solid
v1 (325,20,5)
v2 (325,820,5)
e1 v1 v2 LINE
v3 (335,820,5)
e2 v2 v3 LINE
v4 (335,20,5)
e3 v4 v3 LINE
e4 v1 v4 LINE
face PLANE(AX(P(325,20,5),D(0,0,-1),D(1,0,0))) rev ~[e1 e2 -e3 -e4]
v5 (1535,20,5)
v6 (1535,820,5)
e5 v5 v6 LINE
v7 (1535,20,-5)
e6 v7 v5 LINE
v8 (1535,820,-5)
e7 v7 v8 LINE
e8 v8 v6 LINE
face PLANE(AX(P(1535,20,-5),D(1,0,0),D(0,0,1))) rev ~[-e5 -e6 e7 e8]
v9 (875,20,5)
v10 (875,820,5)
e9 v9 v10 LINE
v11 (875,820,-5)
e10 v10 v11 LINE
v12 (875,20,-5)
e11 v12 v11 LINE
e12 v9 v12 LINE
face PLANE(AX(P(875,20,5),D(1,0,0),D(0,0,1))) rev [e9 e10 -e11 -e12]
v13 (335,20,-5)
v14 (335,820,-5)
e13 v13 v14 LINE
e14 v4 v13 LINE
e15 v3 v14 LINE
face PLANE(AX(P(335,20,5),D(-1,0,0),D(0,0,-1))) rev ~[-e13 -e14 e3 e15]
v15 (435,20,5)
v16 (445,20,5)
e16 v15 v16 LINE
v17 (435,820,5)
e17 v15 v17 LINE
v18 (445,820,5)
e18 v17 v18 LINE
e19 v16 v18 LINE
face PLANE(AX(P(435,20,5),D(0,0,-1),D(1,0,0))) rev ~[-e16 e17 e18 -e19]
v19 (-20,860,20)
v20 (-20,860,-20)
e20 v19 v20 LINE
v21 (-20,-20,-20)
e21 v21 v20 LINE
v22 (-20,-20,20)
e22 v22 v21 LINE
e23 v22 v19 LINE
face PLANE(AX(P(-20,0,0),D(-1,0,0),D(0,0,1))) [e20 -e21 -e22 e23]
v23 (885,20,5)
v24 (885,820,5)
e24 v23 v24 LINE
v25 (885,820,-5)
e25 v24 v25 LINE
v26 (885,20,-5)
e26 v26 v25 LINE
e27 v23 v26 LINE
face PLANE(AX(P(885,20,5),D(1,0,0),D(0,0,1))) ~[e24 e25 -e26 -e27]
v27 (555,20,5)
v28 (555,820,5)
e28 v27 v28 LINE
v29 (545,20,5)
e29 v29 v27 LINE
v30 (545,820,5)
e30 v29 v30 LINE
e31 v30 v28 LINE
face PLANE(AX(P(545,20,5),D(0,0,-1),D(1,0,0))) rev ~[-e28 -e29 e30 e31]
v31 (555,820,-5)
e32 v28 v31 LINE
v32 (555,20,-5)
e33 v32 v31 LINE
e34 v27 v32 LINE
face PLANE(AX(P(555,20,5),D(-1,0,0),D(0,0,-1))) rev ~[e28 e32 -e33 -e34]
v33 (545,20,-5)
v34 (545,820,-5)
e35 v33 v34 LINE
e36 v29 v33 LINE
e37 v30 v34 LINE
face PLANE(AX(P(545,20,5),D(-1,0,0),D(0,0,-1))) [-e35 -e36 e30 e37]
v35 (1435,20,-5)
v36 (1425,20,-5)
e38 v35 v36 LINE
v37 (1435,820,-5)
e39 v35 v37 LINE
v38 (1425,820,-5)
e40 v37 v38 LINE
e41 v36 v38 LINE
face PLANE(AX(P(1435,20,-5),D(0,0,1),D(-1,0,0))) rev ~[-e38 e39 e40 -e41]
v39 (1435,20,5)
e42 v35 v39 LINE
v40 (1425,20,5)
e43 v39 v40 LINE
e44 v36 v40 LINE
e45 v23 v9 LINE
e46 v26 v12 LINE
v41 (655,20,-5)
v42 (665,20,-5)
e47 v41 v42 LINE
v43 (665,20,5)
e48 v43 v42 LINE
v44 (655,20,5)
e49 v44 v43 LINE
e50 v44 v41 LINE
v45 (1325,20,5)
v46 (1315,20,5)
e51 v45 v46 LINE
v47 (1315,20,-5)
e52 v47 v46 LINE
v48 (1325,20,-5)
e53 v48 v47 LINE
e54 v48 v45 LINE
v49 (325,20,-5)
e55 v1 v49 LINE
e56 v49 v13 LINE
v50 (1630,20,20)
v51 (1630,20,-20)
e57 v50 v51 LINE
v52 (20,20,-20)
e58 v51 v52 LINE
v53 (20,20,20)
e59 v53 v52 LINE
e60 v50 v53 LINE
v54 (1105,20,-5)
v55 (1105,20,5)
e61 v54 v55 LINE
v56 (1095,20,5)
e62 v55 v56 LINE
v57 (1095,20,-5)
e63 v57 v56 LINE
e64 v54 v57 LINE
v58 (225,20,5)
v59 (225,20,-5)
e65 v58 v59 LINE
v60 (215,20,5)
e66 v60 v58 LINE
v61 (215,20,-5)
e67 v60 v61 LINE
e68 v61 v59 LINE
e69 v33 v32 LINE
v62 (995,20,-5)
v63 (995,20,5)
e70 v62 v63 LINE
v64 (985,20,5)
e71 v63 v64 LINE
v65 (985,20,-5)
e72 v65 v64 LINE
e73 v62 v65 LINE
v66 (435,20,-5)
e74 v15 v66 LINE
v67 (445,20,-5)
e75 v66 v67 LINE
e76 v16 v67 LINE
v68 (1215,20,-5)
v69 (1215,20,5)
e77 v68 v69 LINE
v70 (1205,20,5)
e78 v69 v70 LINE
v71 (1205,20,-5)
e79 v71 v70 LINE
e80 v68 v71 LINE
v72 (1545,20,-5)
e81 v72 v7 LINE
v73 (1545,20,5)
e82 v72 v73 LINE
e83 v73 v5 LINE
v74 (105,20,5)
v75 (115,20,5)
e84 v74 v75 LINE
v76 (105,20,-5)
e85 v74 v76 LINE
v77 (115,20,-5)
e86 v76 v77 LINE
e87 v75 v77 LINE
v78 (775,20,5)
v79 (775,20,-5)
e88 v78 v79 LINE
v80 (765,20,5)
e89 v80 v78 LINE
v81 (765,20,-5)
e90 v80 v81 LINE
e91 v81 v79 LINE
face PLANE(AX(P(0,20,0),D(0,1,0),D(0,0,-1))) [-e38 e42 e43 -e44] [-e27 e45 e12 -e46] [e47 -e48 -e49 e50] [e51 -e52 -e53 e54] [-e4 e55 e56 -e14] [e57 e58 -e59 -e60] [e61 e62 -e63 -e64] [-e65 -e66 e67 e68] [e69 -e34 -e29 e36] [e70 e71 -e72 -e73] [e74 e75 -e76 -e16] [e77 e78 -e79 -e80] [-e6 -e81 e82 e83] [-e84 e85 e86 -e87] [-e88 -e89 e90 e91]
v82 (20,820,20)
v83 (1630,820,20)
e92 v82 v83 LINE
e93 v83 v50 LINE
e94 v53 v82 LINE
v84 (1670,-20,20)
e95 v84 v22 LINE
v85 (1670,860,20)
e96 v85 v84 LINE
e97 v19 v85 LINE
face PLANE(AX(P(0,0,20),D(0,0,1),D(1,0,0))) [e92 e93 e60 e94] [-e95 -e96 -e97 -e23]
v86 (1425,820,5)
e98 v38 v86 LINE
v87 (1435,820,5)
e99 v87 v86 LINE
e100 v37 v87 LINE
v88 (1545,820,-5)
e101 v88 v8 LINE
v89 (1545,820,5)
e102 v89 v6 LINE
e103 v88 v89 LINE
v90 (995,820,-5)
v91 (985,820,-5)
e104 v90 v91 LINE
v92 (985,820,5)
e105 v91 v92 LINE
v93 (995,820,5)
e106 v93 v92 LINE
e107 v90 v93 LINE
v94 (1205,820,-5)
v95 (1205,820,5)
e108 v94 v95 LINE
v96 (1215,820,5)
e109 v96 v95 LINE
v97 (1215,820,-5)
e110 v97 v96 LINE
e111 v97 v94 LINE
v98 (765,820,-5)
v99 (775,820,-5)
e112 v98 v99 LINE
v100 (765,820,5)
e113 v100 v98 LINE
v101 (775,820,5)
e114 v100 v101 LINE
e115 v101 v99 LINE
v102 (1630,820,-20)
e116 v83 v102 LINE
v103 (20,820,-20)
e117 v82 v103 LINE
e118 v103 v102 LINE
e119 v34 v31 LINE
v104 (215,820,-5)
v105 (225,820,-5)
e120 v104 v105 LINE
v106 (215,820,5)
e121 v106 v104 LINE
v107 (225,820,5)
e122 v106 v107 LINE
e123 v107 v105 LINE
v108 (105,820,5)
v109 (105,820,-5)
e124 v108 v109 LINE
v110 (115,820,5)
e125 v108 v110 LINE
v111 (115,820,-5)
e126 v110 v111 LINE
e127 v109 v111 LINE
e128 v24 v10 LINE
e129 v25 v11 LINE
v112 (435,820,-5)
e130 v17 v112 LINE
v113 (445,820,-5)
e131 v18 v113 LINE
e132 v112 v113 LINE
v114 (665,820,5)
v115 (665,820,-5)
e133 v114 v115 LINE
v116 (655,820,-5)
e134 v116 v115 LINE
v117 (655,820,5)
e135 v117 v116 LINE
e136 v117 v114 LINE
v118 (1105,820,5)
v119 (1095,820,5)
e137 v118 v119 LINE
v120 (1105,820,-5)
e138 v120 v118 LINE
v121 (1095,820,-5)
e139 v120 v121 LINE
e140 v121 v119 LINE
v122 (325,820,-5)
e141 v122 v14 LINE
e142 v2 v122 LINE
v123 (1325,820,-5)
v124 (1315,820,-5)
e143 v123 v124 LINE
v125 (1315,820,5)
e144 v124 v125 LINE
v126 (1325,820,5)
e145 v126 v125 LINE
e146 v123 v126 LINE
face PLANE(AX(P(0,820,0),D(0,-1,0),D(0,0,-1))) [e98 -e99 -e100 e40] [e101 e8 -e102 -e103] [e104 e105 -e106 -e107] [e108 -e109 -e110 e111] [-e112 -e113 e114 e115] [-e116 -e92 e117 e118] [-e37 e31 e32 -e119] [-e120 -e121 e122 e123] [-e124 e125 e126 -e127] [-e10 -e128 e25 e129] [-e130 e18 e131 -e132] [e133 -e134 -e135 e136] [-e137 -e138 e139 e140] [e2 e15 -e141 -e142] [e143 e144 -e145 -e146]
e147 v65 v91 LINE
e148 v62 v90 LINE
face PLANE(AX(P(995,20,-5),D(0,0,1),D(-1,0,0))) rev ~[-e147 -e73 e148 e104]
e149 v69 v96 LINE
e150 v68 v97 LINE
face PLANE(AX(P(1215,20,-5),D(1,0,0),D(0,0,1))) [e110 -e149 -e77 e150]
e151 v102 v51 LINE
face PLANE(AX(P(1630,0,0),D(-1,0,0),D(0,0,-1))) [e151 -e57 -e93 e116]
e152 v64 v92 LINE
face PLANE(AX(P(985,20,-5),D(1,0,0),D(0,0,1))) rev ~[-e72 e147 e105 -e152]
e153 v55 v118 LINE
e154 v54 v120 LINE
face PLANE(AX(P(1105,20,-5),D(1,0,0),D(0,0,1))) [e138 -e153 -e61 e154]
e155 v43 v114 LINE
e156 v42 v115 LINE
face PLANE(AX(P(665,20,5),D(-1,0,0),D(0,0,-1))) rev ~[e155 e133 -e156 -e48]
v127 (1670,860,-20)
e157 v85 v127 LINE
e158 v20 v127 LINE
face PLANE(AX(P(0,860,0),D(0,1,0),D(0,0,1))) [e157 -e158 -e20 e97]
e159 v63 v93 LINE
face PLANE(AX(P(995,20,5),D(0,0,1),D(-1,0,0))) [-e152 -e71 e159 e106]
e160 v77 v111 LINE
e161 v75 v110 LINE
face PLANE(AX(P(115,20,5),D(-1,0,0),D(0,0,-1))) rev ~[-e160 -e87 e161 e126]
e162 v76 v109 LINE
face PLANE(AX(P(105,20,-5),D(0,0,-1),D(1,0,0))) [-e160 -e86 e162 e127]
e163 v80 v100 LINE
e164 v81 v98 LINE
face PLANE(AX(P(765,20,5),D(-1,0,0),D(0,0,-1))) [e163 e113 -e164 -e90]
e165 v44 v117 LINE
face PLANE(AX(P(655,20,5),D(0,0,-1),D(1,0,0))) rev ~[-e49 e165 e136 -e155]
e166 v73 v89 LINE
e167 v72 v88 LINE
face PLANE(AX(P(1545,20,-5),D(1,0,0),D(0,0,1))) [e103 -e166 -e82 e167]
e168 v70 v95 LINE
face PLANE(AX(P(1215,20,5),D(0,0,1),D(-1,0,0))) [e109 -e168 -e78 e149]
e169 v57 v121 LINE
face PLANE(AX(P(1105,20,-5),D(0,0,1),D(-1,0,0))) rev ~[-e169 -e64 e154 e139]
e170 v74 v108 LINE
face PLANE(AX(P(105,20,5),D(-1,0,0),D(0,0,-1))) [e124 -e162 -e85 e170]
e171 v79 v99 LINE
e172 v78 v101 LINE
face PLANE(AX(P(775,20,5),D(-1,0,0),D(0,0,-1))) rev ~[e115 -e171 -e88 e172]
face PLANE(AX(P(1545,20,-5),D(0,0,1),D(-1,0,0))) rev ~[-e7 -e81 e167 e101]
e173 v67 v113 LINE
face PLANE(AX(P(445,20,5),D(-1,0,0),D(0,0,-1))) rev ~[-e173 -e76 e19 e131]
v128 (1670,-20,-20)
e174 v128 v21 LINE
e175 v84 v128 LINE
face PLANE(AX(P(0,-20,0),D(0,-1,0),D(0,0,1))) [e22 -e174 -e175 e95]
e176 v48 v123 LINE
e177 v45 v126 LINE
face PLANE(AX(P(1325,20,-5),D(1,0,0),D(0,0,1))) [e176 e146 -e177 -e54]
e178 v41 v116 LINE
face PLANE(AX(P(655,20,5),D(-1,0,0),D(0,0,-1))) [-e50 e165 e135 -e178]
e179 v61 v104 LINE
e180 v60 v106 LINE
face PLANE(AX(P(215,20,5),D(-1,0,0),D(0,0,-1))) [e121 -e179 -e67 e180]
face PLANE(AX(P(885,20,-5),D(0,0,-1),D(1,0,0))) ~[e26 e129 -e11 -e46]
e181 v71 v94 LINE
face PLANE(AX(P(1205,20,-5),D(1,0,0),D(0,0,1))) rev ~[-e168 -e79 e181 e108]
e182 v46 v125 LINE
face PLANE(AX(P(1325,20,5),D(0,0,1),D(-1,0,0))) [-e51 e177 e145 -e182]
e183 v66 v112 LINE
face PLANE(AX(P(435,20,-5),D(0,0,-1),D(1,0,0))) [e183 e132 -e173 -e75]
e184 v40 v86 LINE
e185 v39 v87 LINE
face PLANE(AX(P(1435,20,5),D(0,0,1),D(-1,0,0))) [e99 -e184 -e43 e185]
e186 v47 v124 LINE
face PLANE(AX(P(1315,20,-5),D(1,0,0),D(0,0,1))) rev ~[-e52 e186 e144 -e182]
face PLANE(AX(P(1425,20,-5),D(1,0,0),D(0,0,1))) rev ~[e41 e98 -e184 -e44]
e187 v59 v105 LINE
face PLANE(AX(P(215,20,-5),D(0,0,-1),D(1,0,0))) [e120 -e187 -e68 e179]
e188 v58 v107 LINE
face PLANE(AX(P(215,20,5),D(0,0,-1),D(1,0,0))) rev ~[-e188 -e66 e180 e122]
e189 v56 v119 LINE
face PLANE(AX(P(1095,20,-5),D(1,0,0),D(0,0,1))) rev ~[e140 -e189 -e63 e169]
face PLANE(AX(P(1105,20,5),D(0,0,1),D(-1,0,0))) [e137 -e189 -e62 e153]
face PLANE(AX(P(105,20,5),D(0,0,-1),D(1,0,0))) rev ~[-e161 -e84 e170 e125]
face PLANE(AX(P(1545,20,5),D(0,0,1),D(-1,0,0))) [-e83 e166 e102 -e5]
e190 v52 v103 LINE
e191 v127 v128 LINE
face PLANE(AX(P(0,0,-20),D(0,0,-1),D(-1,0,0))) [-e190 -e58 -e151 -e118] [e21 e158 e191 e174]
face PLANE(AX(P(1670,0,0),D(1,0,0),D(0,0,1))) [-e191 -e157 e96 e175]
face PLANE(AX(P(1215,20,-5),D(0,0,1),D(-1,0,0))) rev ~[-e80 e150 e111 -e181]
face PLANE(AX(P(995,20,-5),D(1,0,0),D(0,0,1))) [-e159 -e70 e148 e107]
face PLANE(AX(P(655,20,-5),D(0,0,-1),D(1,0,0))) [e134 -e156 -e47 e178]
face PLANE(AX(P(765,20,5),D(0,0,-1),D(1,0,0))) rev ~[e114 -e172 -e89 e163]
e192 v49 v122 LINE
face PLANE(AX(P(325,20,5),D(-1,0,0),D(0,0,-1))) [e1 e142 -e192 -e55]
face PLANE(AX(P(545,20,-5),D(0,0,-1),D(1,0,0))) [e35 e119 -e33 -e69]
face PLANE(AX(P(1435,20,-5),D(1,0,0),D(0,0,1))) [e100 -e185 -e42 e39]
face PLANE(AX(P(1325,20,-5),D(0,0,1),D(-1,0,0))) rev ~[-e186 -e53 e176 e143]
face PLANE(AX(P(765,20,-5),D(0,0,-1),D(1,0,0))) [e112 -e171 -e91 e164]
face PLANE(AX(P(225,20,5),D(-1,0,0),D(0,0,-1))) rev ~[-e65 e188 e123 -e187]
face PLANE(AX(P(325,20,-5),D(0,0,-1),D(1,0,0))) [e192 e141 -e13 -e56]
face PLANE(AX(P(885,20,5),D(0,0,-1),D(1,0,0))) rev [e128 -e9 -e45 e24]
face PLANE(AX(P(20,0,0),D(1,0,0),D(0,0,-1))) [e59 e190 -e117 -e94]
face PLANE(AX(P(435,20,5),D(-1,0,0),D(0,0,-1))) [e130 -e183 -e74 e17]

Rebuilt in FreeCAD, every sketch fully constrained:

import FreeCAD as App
import Part
import Sketcher
from FreeCAD import Vector


def add_polygon(sketch, points):
    """Adds a closed chain of lines whose ends are joined by coincident constraints."""
    first, n = sketch.GeometryCount, len(points)
    for a, b in zip(points, points[1:] + points[:1]):
        sketch.addGeometry(Part.LineSegment(App.Vector(*a, 0), App.Vector(*b, 0)), False)
    for i in range(n):
        sketch.addConstraint(Sketcher.Constraint("Coincident", first + i, 2, first + (i + 1) % n, 1))

doc = App.newDocument("Part")
params = doc.addObject("Spreadsheet::Sheet", "Params")
for row, (alias, value) in enumerate([
    ("sketch1_width", "40 mm"),
    ("sketch2_width", "1650 mm"),
    ("sketch2_height", "840 mm"),
    ("sketch3_width", "10 mm"),
    ("pad1_length", "800 mm"),
    ("linearpattern_pitch", "110 mm"),
    ("sketch4_width", "10 mm"),
    ("pad2_length", "800 mm"),
    ("sketch5_width", "10 mm"),
    ("pad3_length", "800 mm"),
    ("sketch6_width", "10 mm"),
    ("pad4_length", "800 mm"),
    ("sketch7_width", "10 mm"),
    ("pad5_length", "800 mm"),
    ("sketch8_width", "10 mm"),
    ("pad6_length", "800 mm"),
    ("sketch9_width", "10 mm"),
    ("pad7_length", "800 mm"),
], start=1):
    params.set(f"A{row}", alias)
    params.set(f"B{row}", "=" + value)
    params.setAlias(f"B{row}", alias)

body = doc.addObject("PartDesign::Body", "Body")

# Sketch on XZ plane
sketch1 = body.newObject("Sketcher::SketchObject", "Sketch")
sketch1.AttachmentSupport = (doc.getObject("XZ_Plane"), [""])
sketch1.MapMode = "FlatFace"
add_polygon(sketch1, [(-20, -20), (-20, 20), (20, 20), (20, -20)])  # lines 0-3
sketch1.addConstraint(Sketcher.Constraint("Vertical", 0))
sketch1.addConstraint(Sketcher.Constraint("Horizontal", 1))
sketch1.addConstraint(Sketcher.Constraint("Vertical", 2))
sketch1.addConstraint(Sketcher.Constraint("Horizontal", 3))
sketch1.addConstraint(Sketcher.Constraint("Symmetric", 0, 2, 2, 2, -1, 1))
sketch1.addConstraint(Sketcher.Constraint("Equal", 3, 0))
sketch1.addConstraint(Sketcher.Constraint("DistanceX", 1, 1, 1, 2, 40.0))
sketch1.setExpression("Constraints[10]", "Params.sketch1_width")

# Sketch on XY plane
sketch2 = body.newObject("Sketcher::SketchObject", "Sketch001")
sketch2.AttachmentSupport = (doc.getObject("XY_Plane"), [""])
sketch2.MapMode = "FlatFace"
add_polygon(sketch2, [(0, 0), (0, 840), (1650, 840), (1650, 0)])  # lines 0-3
sketch2.addConstraint(Sketcher.Constraint("Vertical", 0))
sketch2.addConstraint(Sketcher.Constraint("Horizontal", 1))
sketch2.addConstraint(Sketcher.Constraint("Vertical", 2))
sketch2.addConstraint(Sketcher.Constraint("Horizontal", 3))
sketch2.addConstraint(Sketcher.Constraint("Coincident", 3, 2, -1, 1))
sketch2.addConstraint(Sketcher.Constraint("DistanceX", 1, 1, 1, 2, 1650.0))
sketch2.addConstraint(Sketcher.Constraint("DistanceY", 0, 1, 0, 2, 840.0))
sketch2.setExpression("Constraints[9]", "Params.sketch2_width")
sketch2.setExpression("Constraints[10]", "Params.sketch2_height")
doc.recompute()

additivepipe = body.newObject("PartDesign::AdditivePipe", "AdditivePipe")
additivepipe.Profile = sketch1
additivepipe.Spine = (sketch2, ["Edge1", "Edge2", "Edge3", "Edge4"])
additivepipe.Transition = "Right corner"

# Sketch on XZ plane
sketch3 = body.newObject("Sketcher::SketchObject", "Sketch002")
sketch3.AttachmentSupport = (doc.getObject("XZ_Plane"), [""])
sketch3.MapMode = "FlatFace"
sketch3.AttachmentOffset = App.Placement(Vector(0, 0, -20), App.Rotation())
add_polygon(sketch3, [(765, -5), (765, 5), (775, 5), (775, -5)])  # lines 0-3
sketch3.addConstraint(Sketcher.Constraint("Vertical", 0))
sketch3.addConstraint(Sketcher.Constraint("Horizontal", 1))
sketch3.addConstraint(Sketcher.Constraint("Vertical", 2))
sketch3.addConstraint(Sketcher.Constraint("Horizontal", 3))
sketch3.addConstraint(Sketcher.Constraint("Equal", 3, 0))
sketch3.addConstraint(Sketcher.Constraint("DistanceX", 1, 1, 1, 2, 10.0))
sketch3.addConstraint(Sketcher.Constraint("DistanceX", -1, 1, 0, 2, 765.0))
sketch3.addConstraint(Sketcher.Constraint("DistanceY", -1, 1, 0, 2, 5.0))
sketch3.setExpression("Constraints[9]", "Params.sketch3_width")
pad1 = body.newObject("PartDesign::Pad", "Pad")
pad1.Profile = sketch3
pad1.setExpression("Length", "Params.pad1_length")
pad1.Reversed = True
doc.recompute()

linearpattern = body.newObject("PartDesign::LinearPattern", "LinearPattern")
linearpattern.Originals = [pad1]
linearpattern.Direction = (doc.getObject("X_Axis"), [""])
linearpattern.Mode = "offset"
linearpattern.setExpression("Offset", "Params.linearpattern_pitch")
linearpattern.Occurrences = 7
linearpattern.Reversed = True
body.Tip = linearpattern
doc.recompute()

datumplane = body.newObject("PartDesign::Plane", "DatumPlane")
datumplane.AttachmentSupport = (doc.getObject("YZ_Plane"), [""])
datumplane.MapMode = "FlatFace"
datumplane.AttachmentOffset = App.Placement(Vector(0, 0, 825), App.Rotation())
mirrored = body.newObject("PartDesign::Mirrored", "Mirrored")
mirrored.Originals = [pad1]
mirrored.MirrorPlane = (datumplane, [""])
body.Tip = mirrored

# Sketch on XZ plane
sketch4 = body.newObject("Sketcher::SketchObject", "Sketch003")
sketch4.AttachmentSupport = (doc.getObject("XZ_Plane"), [""])
sketch4.MapMode = "FlatFace"
sketch4.AttachmentOffset = App.Placement(Vector(0, 0, -20), App.Rotation())
add_polygon(sketch4, [(995, 5), (995, -5), (985, -5), (985, 5)])  # lines 0-3
sketch4.addConstraint(Sketcher.Constraint("Vertical", 0))
sketch4.addConstraint(Sketcher.Constraint("Horizontal", 1))
sketch4.addConstraint(Sketcher.Constraint("Vertical", 2))
sketch4.addConstraint(Sketcher.Constraint("Horizontal", 3))
sketch4.addConstraint(Sketcher.Constraint("Equal", 3, 0))
sketch4.addConstraint(Sketcher.Constraint("DistanceX", 1, 2, 1, 1, 10.0))
sketch4.addConstraint(Sketcher.Constraint("DistanceX", -1, 1, 0, 2, 995.0))
sketch4.addConstraint(Sketcher.Constraint("DistanceY", 0, 2, -1, 1, 5.0))
sketch4.setExpression("Constraints[9]", "Params.sketch4_width")
pad2 = body.newObject("PartDesign::Pad", "Pad001")
pad2.Profile = sketch4
pad2.setExpression("Length", "Params.pad2_length")
pad2.Reversed = True

# Sketch on XZ plane
sketch5 = body.newObject("Sketcher::SketchObject", "Sketch004")
sketch5.AttachmentSupport = (doc.getObject("XZ_Plane"), [""])
sketch5.MapMode = "FlatFace"
sketch5.AttachmentOffset = App.Placement(Vector(0, 0, -20), App.Rotation())
add_polygon(sketch5, [(1105, 5), (1105, -5), (1095, -5), (1095, 5)])  # lines 0-3
sketch5.addConstraint(Sketcher.Constraint("Vertical", 0))
sketch5.addConstraint(Sketcher.Constraint("Horizontal", 1))
sketch5.addConstraint(Sketcher.Constraint("Vertical", 2))
sketch5.addConstraint(Sketcher.Constraint("Horizontal", 3))
sketch5.addConstraint(Sketcher.Constraint("Equal", 3, 0))
sketch5.addConstraint(Sketcher.Constraint("DistanceX", 1, 2, 1, 1, 10.0))
sketch5.addConstraint(Sketcher.Constraint("DistanceX", -1, 1, 0, 2, 1105.0))
sketch5.addConstraint(Sketcher.Constraint("DistanceY", 0, 2, -1, 1, 5.0))
sketch5.setExpression("Constraints[9]", "Params.sketch5_width")
pad3 = body.newObject("PartDesign::Pad", "Pad002")
pad3.Profile = sketch5
pad3.setExpression("Length", "Params.pad3_length")
pad3.Reversed = True

# Sketch on XZ plane
sketch6 = body.newObject("Sketcher::SketchObject", "Sketch005")
sketch6.AttachmentSupport = (doc.getObject("XZ_Plane"), [""])
sketch6.MapMode = "FlatFace"
sketch6.AttachmentOffset = App.Placement(Vector(0, 0, -20), App.Rotation())
add_polygon(sketch6, [(1215, 5), (1215, -5), (1205, -5), (1205, 5)])  # lines 0-3
sketch6.addConstraint(Sketcher.Constraint("Vertical", 0))
sketch6.addConstraint(Sketcher.Constraint("Horizontal", 1))
sketch6.addConstraint(Sketcher.Constraint("Vertical", 2))
sketch6.addConstraint(Sketcher.Constraint("Horizontal", 3))
sketch6.addConstraint(Sketcher.Constraint("Equal", 3, 0))
sketch6.addConstraint(Sketcher.Constraint("DistanceX", 1, 2, 1, 1, 10.0))
sketch6.addConstraint(Sketcher.Constraint("DistanceX", -1, 1, 0, 2, 1215.0))
sketch6.addConstraint(Sketcher.Constraint("DistanceY", 0, 2, -1, 1, 5.0))
sketch6.setExpression("Constraints[9]", "Params.sketch6_width")
pad4 = body.newObject("PartDesign::Pad", "Pad003")
pad4.Profile = sketch6
pad4.setExpression("Length", "Params.pad4_length")
pad4.Reversed = True

# Sketch on XZ plane
sketch7 = body.newObject("Sketcher::SketchObject", "Sketch006")
sketch7.AttachmentSupport = (doc.getObject("XZ_Plane"), [""])
sketch7.MapMode = "FlatFace"
sketch7.AttachmentOffset = App.Placement(Vector(0, 0, -20), App.Rotation())
add_polygon(sketch7, [(1325, 5), (1325, -5), (1315, -5), (1315, 5)])  # lines 0-3
sketch7.addConstraint(Sketcher.Constraint("Vertical", 0))
sketch7.addConstraint(Sketcher.Constraint("Horizontal", 1))
sketch7.addConstraint(Sketcher.Constraint("Vertical", 2))
sketch7.addConstraint(Sketcher.Constraint("Horizontal", 3))
sketch7.addConstraint(Sketcher.Constraint("Equal", 3, 0))
sketch7.addConstraint(Sketcher.Constraint("DistanceX", 1, 2, 1, 1, 10.0))
sketch7.addConstraint(Sketcher.Constraint("DistanceX", -1, 1, 0, 2, 1325.0))
sketch7.addConstraint(Sketcher.Constraint("DistanceY", 0, 2, -1, 1, 5.0))
sketch7.setExpression("Constraints[9]", "Params.sketch7_width")
pad5 = body.newObject("PartDesign::Pad", "Pad004")
pad5.Profile = sketch7
pad5.setExpression("Length", "Params.pad5_length")
pad5.Reversed = True

# Sketch on XZ plane
sketch8 = body.newObject("Sketcher::SketchObject", "Sketch007")
sketch8.AttachmentSupport = (doc.getObject("XZ_Plane"), [""])
sketch8.MapMode = "FlatFace"
sketch8.AttachmentOffset = App.Placement(Vector(0, 0, -20), App.Rotation())
add_polygon(sketch8, [(1435, 5), (1435, -5), (1425, -5), (1425, 5)])  # lines 0-3
sketch8.addConstraint(Sketcher.Constraint("Vertical", 0))
sketch8.addConstraint(Sketcher.Constraint("Horizontal", 1))
sketch8.addConstraint(Sketcher.Constraint("Vertical", 2))
sketch8.addConstraint(Sketcher.Constraint("Horizontal", 3))
sketch8.addConstraint(Sketcher.Constraint("Equal", 3, 0))
sketch8.addConstraint(Sketcher.Constraint("DistanceX", 1, 2, 1, 1, 10.0))
sketch8.addConstraint(Sketcher.Constraint("DistanceX", -1, 1, 0, 2, 1435.0))
sketch8.addConstraint(Sketcher.Constraint("DistanceY", 0, 2, -1, 1, 5.0))
sketch8.setExpression("Constraints[9]", "Params.sketch8_width")
pad6 = body.newObject("PartDesign::Pad", "Pad005")
pad6.Profile = sketch8
pad6.setExpression("Length", "Params.pad6_length")
pad6.Reversed = True

# Sketch on XZ plane
sketch9 = body.newObject("Sketcher::SketchObject", "Sketch008")
sketch9.AttachmentSupport = (doc.getObject("XZ_Plane"), [""])
sketch9.MapMode = "FlatFace"
sketch9.AttachmentOffset = App.Placement(Vector(0, 0, -20), App.Rotation())
add_polygon(sketch9, [(1545, 5), (1545, -5), (1535, -5), (1535, 5)])  # lines 0-3
sketch9.addConstraint(Sketcher.Constraint("Vertical", 0))
sketch9.addConstraint(Sketcher.Constraint("Horizontal", 1))
sketch9.addConstraint(Sketcher.Constraint("Vertical", 2))
sketch9.addConstraint(Sketcher.Constraint("Horizontal", 3))
sketch9.addConstraint(Sketcher.Constraint("Equal", 3, 0))
sketch9.addConstraint(Sketcher.Constraint("DistanceX", 1, 2, 1, 1, 10.0))
sketch9.addConstraint(Sketcher.Constraint("DistanceX", -1, 1, 0, 2, 1545.0))
sketch9.addConstraint(Sketcher.Constraint("DistanceY", 0, 2, -1, 1, 5.0))
sketch9.setExpression("Constraints[9]", "Params.sketch9_width")
pad7 = body.newObject("PartDesign::Pad", "Pad006")
pad7.Profile = sketch9
pad7.setExpression("Length", "Params.pad7_length")
pad7.Reversed = True

doc.recompute()
